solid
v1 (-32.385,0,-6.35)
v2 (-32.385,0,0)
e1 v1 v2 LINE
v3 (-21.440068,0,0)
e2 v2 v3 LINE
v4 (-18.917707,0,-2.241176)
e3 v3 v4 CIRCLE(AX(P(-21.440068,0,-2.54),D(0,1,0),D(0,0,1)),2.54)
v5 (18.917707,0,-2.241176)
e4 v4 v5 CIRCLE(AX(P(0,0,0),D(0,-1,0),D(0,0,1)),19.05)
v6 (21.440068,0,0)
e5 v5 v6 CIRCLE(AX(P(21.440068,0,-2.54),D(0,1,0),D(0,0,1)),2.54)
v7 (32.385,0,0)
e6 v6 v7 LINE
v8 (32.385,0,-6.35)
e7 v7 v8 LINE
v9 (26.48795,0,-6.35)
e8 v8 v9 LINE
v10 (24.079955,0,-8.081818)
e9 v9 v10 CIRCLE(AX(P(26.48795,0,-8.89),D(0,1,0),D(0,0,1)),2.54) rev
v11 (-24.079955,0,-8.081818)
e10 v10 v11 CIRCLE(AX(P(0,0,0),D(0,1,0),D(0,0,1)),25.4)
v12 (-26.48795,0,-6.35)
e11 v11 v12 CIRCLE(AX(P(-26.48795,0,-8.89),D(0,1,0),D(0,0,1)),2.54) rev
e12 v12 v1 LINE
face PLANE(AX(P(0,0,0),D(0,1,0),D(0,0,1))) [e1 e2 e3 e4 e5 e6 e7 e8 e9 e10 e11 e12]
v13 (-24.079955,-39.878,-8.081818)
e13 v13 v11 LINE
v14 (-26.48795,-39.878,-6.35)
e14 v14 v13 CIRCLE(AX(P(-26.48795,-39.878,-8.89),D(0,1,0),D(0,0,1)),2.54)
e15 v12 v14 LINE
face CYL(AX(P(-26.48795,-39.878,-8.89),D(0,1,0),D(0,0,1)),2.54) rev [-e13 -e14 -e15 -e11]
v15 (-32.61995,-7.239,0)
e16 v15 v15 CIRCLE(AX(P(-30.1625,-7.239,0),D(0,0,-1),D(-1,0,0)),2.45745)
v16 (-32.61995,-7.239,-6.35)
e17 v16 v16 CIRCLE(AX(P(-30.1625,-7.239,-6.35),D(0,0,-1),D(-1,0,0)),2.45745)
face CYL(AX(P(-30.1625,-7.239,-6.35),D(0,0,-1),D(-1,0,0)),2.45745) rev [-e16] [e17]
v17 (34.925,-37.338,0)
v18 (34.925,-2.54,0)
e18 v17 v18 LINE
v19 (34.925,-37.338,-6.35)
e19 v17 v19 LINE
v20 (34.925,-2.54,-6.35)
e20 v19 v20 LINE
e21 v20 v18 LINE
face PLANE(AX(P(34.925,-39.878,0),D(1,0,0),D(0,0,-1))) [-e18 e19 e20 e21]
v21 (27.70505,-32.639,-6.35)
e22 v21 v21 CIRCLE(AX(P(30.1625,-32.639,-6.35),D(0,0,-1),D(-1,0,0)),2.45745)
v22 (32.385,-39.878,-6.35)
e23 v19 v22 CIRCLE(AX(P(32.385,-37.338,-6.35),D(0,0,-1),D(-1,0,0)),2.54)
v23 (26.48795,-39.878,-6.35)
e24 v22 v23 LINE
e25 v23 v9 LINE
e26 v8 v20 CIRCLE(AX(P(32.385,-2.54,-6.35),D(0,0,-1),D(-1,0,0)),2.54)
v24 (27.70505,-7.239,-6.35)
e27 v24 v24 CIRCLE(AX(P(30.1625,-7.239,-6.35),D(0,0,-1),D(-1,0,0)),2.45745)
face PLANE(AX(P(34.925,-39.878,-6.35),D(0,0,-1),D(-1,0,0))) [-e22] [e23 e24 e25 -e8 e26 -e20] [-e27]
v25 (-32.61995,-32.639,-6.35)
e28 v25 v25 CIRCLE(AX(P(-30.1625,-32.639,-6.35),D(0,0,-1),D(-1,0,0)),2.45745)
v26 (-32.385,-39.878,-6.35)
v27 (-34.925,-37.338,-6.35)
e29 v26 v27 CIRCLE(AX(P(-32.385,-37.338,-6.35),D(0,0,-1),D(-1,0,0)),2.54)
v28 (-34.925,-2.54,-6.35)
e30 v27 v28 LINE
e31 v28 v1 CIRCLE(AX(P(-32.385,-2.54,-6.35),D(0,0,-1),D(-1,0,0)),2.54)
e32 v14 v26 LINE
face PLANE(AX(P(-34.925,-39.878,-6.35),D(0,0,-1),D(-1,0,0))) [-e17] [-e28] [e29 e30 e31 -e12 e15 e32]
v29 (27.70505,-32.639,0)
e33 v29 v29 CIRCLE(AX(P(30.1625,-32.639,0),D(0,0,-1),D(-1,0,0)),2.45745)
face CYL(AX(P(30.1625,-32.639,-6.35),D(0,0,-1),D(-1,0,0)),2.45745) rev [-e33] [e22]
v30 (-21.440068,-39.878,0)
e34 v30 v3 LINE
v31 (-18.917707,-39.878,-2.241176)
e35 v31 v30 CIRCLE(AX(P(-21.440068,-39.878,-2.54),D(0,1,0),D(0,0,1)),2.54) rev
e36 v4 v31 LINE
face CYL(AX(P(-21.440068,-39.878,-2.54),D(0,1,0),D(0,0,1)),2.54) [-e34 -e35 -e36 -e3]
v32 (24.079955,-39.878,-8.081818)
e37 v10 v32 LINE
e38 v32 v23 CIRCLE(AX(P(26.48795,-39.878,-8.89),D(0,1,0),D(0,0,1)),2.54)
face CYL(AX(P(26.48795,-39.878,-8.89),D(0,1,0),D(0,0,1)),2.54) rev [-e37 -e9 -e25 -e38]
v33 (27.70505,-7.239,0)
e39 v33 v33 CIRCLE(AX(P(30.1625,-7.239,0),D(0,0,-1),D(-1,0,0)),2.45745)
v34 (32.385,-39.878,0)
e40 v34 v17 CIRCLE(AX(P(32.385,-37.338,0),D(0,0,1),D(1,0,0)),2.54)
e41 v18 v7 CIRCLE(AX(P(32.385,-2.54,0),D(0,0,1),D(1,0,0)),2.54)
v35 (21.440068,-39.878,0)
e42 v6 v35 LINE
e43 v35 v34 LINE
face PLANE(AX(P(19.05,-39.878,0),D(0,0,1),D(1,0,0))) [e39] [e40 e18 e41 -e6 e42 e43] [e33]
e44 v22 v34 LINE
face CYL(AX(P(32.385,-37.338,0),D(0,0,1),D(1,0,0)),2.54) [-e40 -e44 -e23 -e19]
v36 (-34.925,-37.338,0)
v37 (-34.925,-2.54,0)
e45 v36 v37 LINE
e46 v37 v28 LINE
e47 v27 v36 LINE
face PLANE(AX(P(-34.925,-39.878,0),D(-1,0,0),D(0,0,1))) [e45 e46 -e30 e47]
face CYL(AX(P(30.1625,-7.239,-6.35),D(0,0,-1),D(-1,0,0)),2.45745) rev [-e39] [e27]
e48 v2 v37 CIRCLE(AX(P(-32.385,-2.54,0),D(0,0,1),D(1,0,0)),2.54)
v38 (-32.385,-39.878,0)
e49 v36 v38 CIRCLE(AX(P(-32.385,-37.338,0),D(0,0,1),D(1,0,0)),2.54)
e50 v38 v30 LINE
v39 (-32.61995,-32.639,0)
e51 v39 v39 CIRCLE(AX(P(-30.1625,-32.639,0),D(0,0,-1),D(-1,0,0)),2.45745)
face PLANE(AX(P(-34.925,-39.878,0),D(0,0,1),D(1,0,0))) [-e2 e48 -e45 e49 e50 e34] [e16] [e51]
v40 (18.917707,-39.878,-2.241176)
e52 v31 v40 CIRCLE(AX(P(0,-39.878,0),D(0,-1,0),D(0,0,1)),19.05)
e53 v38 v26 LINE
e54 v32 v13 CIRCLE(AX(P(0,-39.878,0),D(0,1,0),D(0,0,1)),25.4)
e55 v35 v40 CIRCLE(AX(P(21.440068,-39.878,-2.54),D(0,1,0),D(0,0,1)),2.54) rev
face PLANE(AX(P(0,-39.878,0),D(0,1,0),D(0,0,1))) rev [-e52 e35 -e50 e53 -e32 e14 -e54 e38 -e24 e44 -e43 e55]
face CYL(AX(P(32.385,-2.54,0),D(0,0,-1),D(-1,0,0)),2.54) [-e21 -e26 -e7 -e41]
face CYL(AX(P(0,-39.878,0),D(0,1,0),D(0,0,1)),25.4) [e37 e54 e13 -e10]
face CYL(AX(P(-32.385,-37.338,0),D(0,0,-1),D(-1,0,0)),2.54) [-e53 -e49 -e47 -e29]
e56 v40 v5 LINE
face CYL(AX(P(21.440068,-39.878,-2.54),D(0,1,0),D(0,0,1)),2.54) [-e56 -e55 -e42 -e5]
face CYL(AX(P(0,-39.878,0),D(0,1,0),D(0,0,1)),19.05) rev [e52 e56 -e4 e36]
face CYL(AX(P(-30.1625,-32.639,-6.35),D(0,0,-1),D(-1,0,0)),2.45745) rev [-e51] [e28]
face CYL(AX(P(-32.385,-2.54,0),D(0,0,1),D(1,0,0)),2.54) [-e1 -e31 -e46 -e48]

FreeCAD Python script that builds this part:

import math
import FreeCAD as App
import Part
import Sketcher
Q = App.Units.Quantity


def edges_at(feature, points):
    """Names of the edges that pass closest to the given points."""
    edges = feature.Shape.Edges
    near = lambda p: min(range(len(edges)), key=lambda i: edges[i].distToShape(Part.Vertex(*p))[0])
    return sorted({f"Edge{near(p) + 1}" for p in points})

doc = App.newDocument("Part")
params = doc.addObject("Spreadsheet::Sheet", "Params")
for row, (alias, value) in enumerate([
    ("sketch1_radius", "1 in"),
    ("sketch1_radius2", "0.75 in"),
    ("sketch1_height", "0.25 in"),
    ("sketch1_width", "0.625 in"),
    ("pad1_length", "1.57 in"),
    ("fillet_radius", "0.1 in"),
    ("hole_diameter", "0.1935 in"),
], start=1):
    params.set(f"A{row}", alias)
    params.set(f"B{row}", "=" + value)
    params.setAlias(f"B{row}", alias)

body = doc.addObject("PartDesign::Body", "Body")

# Sketch on XZ plane
sketch1 = body.newObject("Sketcher::SketchObject", "Sketch")
sketch1.AttachmentSupport = (doc.getObject("XZ_Plane"), [""])
sketch1.MapMode = "FlatFace"
sketch1.addGeometry([
    Part.LineSegment(App.Vector(-35, 0, 0), App.Vector(-19, 0, 0)),  # 0
    Part.ArcOfCircle(Part.Circle(App.Vector(0, 0, 0), App.Vector(0, 0, 1), 19), math.radians(180), math.radians(360)),  # 1
    Part.LineSegment(App.Vector(19, 0, 0), App.Vector(35, 0, 0)),  # 2
    Part.LineSegment(App.Vector(35, 0, 0), App.Vector(35, -6, 0)),  # 3
    Part.LineSegment(App.Vector(35, -6, 0), App.Vector(25, -6, 0)),  # 4
    Part.ArcOfCircle(Part.Circle(App.Vector(0, 0, 0), App.Vector(0, 0, 1), 25), math.radians(-166), math.radians(-14)),  # 5
    Part.LineSegment(App.Vector(-25, -6, 0), App.Vector(-35, -6, 0)),  # 6
    Part.LineSegment(App.Vector(-35, -6, 0), App.Vector(-35, 0, 0)),  # 7
], False)
sketch1.addConstraint([
    Sketcher.Constraint("Coincident", 0, 2, 1, 1),
    Sketcher.Constraint("Coincident", 1, 2, 2, 1),
    Sketcher.Constraint("Coincident", 2, 2, 3, 1),
    Sketcher.Constraint("Coincident", 3, 2, 4, 1),
    Sketcher.Constraint("Coincident", 4, 2, 5, 2),
    Sketcher.Constraint("Coincident", 5, 1, 6, 1),
    Sketcher.Constraint("Coincident", 6, 2, 7, 1),
    Sketcher.Constraint("Coincident", 7, 2, 0, 1),
    Sketcher.Constraint("Horizontal", 0),
    Sketcher.Constraint("Horizontal", 2),
    Sketcher.Constraint("Vertical", 3),
    Sketcher.Constraint("Horizontal", 4),
    Sketcher.Constraint("Horizontal", 6),
    Sketcher.Constraint("Vertical", 7),
    Sketcher.Constraint("Coincident", 1, 3, -1, 1),
    Sketcher.Constraint("Coincident", 5, 3, -1, 1),
    Sketcher.Constraint("Symmetric", 2, 2, 7, 2, -1, 1),
    Sketcher.Constraint("PointOnObject", 0, 2, -1),
    Sketcher.Constraint("Horizontal", 4, 2, 5, 1),
    Sketcher.Constraint("Radius", 5, Q("1 in")),
    Sketcher.Constraint("Radius", 1, Q("0.75 in")),
    Sketcher.Constraint("DistanceY", 3, 2, 3, 1, Q("0.25 in")),
    Sketcher.Constraint("DistanceX", 0, 1, 0, 2, Q("0.625 in")),
])
sketch1.setExpression("Constraints[19]", "Params.sketch1_radius")
sketch1.setExpression("Constraints[20]", "Params.sketch1_radius2")
sketch1.setExpression("Constraints[21]", "Params.sketch1_height")
sketch1.setExpression("Constraints[22]", "Params.sketch1_width")
pad1 = body.newObject("PartDesign::Pad", "Pad")
pad1.Profile = sketch1
pad1.setExpression("Length", "Params.pad1_length")
doc.recompute()

fillet = body.newObject("PartDesign::Fillet", "Fillet")
fillet.Base = (pad1, edges_at(pad1, [
    (-34.925, 0, -3.175),
    (-24.593, -19.939, -6.35),
    (24.593, -19.939, -6.35),
    (19.05, -19.939, 0),
    (-19.05, -19.939, 0),
    (34.925, -39.878, -3.175),
    (-34.925, -39.878, -3.175),
    (34.925, 0, -3.175),
]))
fillet.setExpression("Radius", "Params.fillet_radius")

# Sketch on XY plane
sketch2 = body.newObject("Sketcher::SketchObject", "Sketch001")
sketch2.AttachmentSupport = (doc.getObject("XY_Plane"), [""])
sketch2.MapMode = "FlatFace"
sketch2.AttachmentOffset = App.Placement(App.Vector(0, 0, -0.25 * 25.4), App.Rotation())
sketch2.addGeometry([
    Part.Circle(App.Vector(30.2, -7.2, 0), App.Vector(0, 0, 1), 2.5),
    Part.Circle(App.Vector(30.2, -32.6, 0), App.Vector(0, 0, 1), 2.5),
], False)
sketch2.addConstraint([
    Sketcher.Constraint("Equal", 0, 1),
    Sketcher.Constraint("Vertical", 0, 3, 1, 3),
    Sketcher.Constraint("DistanceY", 1, 3, 0, 3, Q("1 in")),
    Sketcher.Constraint("Diameter", 0, Q("0.1935 in")),
    Sketcher.Constraint("DistanceX", -1, 1, 0, 3, Q("1.1875 in")),
    Sketcher.Constraint("DistanceY", 0, 3, -1, 1, Q("0.285 in")),
])
doc.recompute()
hole = body.newObject("PartDesign::Hole", "Hole")
hole.Profile = sketch2
hole.ThreadType = "None"
hole.setExpression("Diameter", "Params.hole_diameter")
hole.DepthType = "ThroughAll"
hole.Reversed = True
doc.recompute()

mirrored = body.newObject("PartDesign::Mirrored", "Mirrored")
mirrored.Originals = [hole]
mirrored.MirrorPlane = (doc.getObject("YZ_Plane"), [""])
body.Tip = mirrored

doc.recompute()
